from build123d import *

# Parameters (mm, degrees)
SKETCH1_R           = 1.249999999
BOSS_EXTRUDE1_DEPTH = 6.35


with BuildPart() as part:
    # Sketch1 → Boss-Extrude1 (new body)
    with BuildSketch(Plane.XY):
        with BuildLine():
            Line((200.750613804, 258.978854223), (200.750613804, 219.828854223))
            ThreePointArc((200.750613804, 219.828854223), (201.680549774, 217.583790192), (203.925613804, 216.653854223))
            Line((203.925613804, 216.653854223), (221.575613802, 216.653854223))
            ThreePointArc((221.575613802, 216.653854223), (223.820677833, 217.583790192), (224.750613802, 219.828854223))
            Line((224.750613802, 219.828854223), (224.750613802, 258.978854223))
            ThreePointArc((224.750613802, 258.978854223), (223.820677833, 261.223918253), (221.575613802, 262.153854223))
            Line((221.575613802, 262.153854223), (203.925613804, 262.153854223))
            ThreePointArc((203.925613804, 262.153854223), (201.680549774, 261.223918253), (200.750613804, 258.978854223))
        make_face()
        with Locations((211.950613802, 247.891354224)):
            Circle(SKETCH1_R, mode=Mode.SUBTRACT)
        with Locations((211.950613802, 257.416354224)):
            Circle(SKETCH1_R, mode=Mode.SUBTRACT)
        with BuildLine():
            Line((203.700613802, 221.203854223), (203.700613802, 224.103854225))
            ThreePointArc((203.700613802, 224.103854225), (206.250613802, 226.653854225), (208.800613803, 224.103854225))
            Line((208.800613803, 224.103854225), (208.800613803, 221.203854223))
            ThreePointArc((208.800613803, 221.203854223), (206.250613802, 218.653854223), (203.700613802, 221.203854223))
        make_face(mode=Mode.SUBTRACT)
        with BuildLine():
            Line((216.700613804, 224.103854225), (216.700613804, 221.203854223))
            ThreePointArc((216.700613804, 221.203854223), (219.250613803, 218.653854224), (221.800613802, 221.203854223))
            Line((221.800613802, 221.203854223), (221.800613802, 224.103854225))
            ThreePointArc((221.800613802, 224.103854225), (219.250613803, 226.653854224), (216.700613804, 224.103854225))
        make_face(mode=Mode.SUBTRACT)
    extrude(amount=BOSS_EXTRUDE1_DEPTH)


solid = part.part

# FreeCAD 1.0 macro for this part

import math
import FreeCAD as App
import Part
import Sketcher
from FreeCAD import Vector
Q = App.Units.Quantity

doc = App.newDocument("Part")
params = doc.addObject("Spreadsheet::Sheet", "Params")
for row, (alias, value) in enumerate([
    ("sketch1_diameter", "2.5 mm"),
    ("sketch1_radius", "2.55 mm"),
    ("sketch1_height", "2.9 mm"),
    ("sketch1_width", "17.65 mm"),
    ("sketch1_height2", "39.15 mm"),
    ("pad1_length", "6.35 mm"),
], start=1):
    params.set(f"A{row}", alias)
    params.set(f"B{row}", "=" + value)
    params.setAlias(f"B{row}", alias)

body = doc.addObject("PartDesign::Body", "Body")

# Sketch on XY plane
sketch1 = body.newObject("Sketcher::SketchObject", "Sketch")
sketch1.AttachmentSupport = (doc.getObject("XY_Plane"), [""])
sketch1.MapMode = "FlatFace"
sketch1.addGeometry([
    Part.LineSegment(Vector(200.750614, 258.978854, 0), Vector(200.750614, 219.828854, 0)),  # 0
    Part.ArcOfCircle(Part.Circle(Vector(203.925614, 219.828854, 0), Vector(0, 0, 1), 3.175), math.radians(180), math.radians(270)),  # 1
    Part.LineSegment(Vector(203.925614, 216.653854, 0), Vector(221.575614, 216.653854, 0)),  # 2
    Part.ArcOfCircle(Part.Circle(Vector(221.575614, 219.828854, 0), Vector(0, 0, 1), 3.175), math.radians(-90), math.radians(0)),  # 3
    Part.LineSegment(Vector(224.750614, 219.828854, 0), Vector(224.750614, 258.978854, 0)),  # 4
    Part.ArcOfCircle(Part.Circle(Vector(221.575614, 258.978854, 0), Vector(0, 0, 1), 3.175), math.radians(0), math.radians(90)),  # 5
    Part.LineSegment(Vector(221.575614, 262.153854, 0), Vector(203.925614, 262.153854, 0)),  # 6
    Part.ArcOfCircle(Part.Circle(Vector(203.925614, 258.978854, 0), Vector(0, 0, 1), 3.175), math.radians(90), math.radians(180)),  # 7
    Part.ArcOfCircle(Part.Circle(Vector(206.250614, 221.203854, 0), Vector(0, 0, 1), 2.55), math.radians(-180), math.radians(0)),  # 8
    Part.LineSegment(Vector(203.700614, 221.203854, 0), Vector(203.700614, 224.103854, 0)),  # 9
    Part.ArcOfCircle(Part.Circle(Vector(206.250614, 224.103854, 0), Vector(0, 0, 1), 2.55), math.radians(0), math.radians(180)),  # 10
    Part.LineSegment(Vector(208.800614, 224.103854, 0), Vector(208.800614, 221.203854, 0)),  # 11
    Part.LineSegment(Vector(216.700614, 221.203854, 0), Vector(216.700614, 224.103854, 0)),  # 12
    Part.ArcOfCircle(Part.Circle(Vector(219.250614, 224.103854, 0), Vector(0, 0, 1), 2.55), math.radians(0), math.radians(180)),  # 13
    Part.LineSegment(Vector(221.800614, 224.103854, 0), Vector(221.800614, 221.203854, 0)),  # 14
    Part.ArcOfCircle(Part.Circle(Vector(219.250614, 221.203854, 0), Vector(0, 0, 1), 2.55), math.radians(180), math.radians(360)),  # 15
    Part.Circle(Vector(211.950614, 247.891354, 0), Vector(0, 0, 1), 1.25),  # 16
    Part.Circle(Vector(211.950614, 257.416354, 0), Vector(0, 0, 1), 1.25),  # 17
], False)
sketch1.addConstraint([
    Sketcher.Constraint("Tangent", 0, 2, 1, 1),
    Sketcher.Constraint("Tangent", 1, 2, 2, 1),
    Sketcher.Constraint("Tangent", 2, 2, 3, 1),
    Sketcher.Constraint("Tangent", 3, 2, 4, 1),
    Sketcher.Constraint("Tangent", 4, 2, 5, 1),
    Sketcher.Constraint("Tangent", 5, 2, 6, 1),
    Sketcher.Constraint("Tangent", 6, 2, 7, 1),
    Sketcher.Constraint("Tangent", 7, 2, 0, 1),
    Sketcher.Constraint("Tangent", 8, 1, 9, 1),
    Sketcher.Constraint("Tangent", 9, 2, 10, 2),
    Sketcher.Constraint("Tangent", 10, 1, 11, 1),
    Sketcher.Constraint("Tangent", 11, 2, 8, 2),
    Sketcher.Constraint("Tangent", 12, 2, 13, 2),
    Sketcher.Constraint("Tangent", 13, 1, 14, 1),
    Sketcher.Constraint("Tangent", 14, 2, 15, 2),
    Sketcher.Constraint("Tangent", 15, 1, 12, 1),
    Sketcher.Constraint("Vertical", 0),
    Sketcher.Constraint("Horizontal", 2),
    Sketcher.Constraint("Vertical", 4),
    Sketcher.Constraint("Horizontal", 6),
    Sketcher.Constraint("Vertical", 9),
    Sketcher.Constraint("Vertical", 11),
    Sketcher.Constraint("Vertical", 12),
    Sketcher.Constraint("Vertical", 14),
    Sketcher.Constraint("Equal", 1, 3),
    Sketcher.Constraint("Equal", 3, 5),
    Sketcher.Constraint("Equal", 5, 7),
    Sketcher.Constraint("Equal", 10, 13),
    Sketcher.Constraint("Equal", 16, 17),
    Sketcher.Constraint("Horizontal", 10, 3, 13, 3),
    Sketcher.Constraint("Horizontal", 8, 3, 15, 3),
    Sketcher.Constraint("Vertical", 16, 3, 17, 3),
    Sketcher.Constraint("Diameter", 16, Q("2.5 mm")),
    Sketcher.Constraint("Radius", 8, Q("2.55 mm")),
    Sketcher.Constraint("DistanceY", 9, 1, 9, 2, Q("2.9 mm")),
    Sketcher.Constraint("Radius", 1, Q("3.175 mm")),
    Sketcher.Constraint("DistanceX", 10, 3, 13, 3, Q("13 mm")),
    Sketcher.Constraint("DistanceX", 2, 1, 2, 2, Q("17.65 mm")),
    Sketcher.Constraint("DistanceY", 0, 2, 0, 1, Q("39.15 mm")),
    Sketcher.Constraint("DistanceX", 10, 3, 16, 3, Q("5.7 mm")),
    Sketcher.Constraint("DistanceX", 0, 2, 8, 3, Q("5.5 mm")),
    Sketcher.Constraint("DistanceY", 1, 2, 8, 3, Q("4.55 mm")),
    Sketcher.Constraint("DistanceY", 16, 3, 17, 3, Q("9.525 mm")),
    Sketcher.Constraint("DistanceY", 16, 3, 7, 3, Q("11.0875 mm")),
    Sketcher.Constraint("DistanceX", -1, 1, 1, 3, Q("203.925614 mm")),
    Sketcher.Constraint("DistanceY", -1, 1, 1, 3, Q("219.828854 mm")),
])
sketch1.setExpression("Constraints[32]", "Params.sketch1_diameter")
sketch1.setExpression("Constraints[33]", "Params.sketch1_radius")
sketch1.setExpression("Constraints[34]", "Params.sketch1_height")
sketch1.setExpression("Constraints[37]", "Params.sketch1_width")
sketch1.setExpression("Constraints[38]", "Params.sketch1_height2")
pad1 = body.newObject("PartDesign::Pad", "Pad")
pad1.Profile = sketch1
pad1.setExpression("Length", "Params.pad1_length")

doc.recompute()
